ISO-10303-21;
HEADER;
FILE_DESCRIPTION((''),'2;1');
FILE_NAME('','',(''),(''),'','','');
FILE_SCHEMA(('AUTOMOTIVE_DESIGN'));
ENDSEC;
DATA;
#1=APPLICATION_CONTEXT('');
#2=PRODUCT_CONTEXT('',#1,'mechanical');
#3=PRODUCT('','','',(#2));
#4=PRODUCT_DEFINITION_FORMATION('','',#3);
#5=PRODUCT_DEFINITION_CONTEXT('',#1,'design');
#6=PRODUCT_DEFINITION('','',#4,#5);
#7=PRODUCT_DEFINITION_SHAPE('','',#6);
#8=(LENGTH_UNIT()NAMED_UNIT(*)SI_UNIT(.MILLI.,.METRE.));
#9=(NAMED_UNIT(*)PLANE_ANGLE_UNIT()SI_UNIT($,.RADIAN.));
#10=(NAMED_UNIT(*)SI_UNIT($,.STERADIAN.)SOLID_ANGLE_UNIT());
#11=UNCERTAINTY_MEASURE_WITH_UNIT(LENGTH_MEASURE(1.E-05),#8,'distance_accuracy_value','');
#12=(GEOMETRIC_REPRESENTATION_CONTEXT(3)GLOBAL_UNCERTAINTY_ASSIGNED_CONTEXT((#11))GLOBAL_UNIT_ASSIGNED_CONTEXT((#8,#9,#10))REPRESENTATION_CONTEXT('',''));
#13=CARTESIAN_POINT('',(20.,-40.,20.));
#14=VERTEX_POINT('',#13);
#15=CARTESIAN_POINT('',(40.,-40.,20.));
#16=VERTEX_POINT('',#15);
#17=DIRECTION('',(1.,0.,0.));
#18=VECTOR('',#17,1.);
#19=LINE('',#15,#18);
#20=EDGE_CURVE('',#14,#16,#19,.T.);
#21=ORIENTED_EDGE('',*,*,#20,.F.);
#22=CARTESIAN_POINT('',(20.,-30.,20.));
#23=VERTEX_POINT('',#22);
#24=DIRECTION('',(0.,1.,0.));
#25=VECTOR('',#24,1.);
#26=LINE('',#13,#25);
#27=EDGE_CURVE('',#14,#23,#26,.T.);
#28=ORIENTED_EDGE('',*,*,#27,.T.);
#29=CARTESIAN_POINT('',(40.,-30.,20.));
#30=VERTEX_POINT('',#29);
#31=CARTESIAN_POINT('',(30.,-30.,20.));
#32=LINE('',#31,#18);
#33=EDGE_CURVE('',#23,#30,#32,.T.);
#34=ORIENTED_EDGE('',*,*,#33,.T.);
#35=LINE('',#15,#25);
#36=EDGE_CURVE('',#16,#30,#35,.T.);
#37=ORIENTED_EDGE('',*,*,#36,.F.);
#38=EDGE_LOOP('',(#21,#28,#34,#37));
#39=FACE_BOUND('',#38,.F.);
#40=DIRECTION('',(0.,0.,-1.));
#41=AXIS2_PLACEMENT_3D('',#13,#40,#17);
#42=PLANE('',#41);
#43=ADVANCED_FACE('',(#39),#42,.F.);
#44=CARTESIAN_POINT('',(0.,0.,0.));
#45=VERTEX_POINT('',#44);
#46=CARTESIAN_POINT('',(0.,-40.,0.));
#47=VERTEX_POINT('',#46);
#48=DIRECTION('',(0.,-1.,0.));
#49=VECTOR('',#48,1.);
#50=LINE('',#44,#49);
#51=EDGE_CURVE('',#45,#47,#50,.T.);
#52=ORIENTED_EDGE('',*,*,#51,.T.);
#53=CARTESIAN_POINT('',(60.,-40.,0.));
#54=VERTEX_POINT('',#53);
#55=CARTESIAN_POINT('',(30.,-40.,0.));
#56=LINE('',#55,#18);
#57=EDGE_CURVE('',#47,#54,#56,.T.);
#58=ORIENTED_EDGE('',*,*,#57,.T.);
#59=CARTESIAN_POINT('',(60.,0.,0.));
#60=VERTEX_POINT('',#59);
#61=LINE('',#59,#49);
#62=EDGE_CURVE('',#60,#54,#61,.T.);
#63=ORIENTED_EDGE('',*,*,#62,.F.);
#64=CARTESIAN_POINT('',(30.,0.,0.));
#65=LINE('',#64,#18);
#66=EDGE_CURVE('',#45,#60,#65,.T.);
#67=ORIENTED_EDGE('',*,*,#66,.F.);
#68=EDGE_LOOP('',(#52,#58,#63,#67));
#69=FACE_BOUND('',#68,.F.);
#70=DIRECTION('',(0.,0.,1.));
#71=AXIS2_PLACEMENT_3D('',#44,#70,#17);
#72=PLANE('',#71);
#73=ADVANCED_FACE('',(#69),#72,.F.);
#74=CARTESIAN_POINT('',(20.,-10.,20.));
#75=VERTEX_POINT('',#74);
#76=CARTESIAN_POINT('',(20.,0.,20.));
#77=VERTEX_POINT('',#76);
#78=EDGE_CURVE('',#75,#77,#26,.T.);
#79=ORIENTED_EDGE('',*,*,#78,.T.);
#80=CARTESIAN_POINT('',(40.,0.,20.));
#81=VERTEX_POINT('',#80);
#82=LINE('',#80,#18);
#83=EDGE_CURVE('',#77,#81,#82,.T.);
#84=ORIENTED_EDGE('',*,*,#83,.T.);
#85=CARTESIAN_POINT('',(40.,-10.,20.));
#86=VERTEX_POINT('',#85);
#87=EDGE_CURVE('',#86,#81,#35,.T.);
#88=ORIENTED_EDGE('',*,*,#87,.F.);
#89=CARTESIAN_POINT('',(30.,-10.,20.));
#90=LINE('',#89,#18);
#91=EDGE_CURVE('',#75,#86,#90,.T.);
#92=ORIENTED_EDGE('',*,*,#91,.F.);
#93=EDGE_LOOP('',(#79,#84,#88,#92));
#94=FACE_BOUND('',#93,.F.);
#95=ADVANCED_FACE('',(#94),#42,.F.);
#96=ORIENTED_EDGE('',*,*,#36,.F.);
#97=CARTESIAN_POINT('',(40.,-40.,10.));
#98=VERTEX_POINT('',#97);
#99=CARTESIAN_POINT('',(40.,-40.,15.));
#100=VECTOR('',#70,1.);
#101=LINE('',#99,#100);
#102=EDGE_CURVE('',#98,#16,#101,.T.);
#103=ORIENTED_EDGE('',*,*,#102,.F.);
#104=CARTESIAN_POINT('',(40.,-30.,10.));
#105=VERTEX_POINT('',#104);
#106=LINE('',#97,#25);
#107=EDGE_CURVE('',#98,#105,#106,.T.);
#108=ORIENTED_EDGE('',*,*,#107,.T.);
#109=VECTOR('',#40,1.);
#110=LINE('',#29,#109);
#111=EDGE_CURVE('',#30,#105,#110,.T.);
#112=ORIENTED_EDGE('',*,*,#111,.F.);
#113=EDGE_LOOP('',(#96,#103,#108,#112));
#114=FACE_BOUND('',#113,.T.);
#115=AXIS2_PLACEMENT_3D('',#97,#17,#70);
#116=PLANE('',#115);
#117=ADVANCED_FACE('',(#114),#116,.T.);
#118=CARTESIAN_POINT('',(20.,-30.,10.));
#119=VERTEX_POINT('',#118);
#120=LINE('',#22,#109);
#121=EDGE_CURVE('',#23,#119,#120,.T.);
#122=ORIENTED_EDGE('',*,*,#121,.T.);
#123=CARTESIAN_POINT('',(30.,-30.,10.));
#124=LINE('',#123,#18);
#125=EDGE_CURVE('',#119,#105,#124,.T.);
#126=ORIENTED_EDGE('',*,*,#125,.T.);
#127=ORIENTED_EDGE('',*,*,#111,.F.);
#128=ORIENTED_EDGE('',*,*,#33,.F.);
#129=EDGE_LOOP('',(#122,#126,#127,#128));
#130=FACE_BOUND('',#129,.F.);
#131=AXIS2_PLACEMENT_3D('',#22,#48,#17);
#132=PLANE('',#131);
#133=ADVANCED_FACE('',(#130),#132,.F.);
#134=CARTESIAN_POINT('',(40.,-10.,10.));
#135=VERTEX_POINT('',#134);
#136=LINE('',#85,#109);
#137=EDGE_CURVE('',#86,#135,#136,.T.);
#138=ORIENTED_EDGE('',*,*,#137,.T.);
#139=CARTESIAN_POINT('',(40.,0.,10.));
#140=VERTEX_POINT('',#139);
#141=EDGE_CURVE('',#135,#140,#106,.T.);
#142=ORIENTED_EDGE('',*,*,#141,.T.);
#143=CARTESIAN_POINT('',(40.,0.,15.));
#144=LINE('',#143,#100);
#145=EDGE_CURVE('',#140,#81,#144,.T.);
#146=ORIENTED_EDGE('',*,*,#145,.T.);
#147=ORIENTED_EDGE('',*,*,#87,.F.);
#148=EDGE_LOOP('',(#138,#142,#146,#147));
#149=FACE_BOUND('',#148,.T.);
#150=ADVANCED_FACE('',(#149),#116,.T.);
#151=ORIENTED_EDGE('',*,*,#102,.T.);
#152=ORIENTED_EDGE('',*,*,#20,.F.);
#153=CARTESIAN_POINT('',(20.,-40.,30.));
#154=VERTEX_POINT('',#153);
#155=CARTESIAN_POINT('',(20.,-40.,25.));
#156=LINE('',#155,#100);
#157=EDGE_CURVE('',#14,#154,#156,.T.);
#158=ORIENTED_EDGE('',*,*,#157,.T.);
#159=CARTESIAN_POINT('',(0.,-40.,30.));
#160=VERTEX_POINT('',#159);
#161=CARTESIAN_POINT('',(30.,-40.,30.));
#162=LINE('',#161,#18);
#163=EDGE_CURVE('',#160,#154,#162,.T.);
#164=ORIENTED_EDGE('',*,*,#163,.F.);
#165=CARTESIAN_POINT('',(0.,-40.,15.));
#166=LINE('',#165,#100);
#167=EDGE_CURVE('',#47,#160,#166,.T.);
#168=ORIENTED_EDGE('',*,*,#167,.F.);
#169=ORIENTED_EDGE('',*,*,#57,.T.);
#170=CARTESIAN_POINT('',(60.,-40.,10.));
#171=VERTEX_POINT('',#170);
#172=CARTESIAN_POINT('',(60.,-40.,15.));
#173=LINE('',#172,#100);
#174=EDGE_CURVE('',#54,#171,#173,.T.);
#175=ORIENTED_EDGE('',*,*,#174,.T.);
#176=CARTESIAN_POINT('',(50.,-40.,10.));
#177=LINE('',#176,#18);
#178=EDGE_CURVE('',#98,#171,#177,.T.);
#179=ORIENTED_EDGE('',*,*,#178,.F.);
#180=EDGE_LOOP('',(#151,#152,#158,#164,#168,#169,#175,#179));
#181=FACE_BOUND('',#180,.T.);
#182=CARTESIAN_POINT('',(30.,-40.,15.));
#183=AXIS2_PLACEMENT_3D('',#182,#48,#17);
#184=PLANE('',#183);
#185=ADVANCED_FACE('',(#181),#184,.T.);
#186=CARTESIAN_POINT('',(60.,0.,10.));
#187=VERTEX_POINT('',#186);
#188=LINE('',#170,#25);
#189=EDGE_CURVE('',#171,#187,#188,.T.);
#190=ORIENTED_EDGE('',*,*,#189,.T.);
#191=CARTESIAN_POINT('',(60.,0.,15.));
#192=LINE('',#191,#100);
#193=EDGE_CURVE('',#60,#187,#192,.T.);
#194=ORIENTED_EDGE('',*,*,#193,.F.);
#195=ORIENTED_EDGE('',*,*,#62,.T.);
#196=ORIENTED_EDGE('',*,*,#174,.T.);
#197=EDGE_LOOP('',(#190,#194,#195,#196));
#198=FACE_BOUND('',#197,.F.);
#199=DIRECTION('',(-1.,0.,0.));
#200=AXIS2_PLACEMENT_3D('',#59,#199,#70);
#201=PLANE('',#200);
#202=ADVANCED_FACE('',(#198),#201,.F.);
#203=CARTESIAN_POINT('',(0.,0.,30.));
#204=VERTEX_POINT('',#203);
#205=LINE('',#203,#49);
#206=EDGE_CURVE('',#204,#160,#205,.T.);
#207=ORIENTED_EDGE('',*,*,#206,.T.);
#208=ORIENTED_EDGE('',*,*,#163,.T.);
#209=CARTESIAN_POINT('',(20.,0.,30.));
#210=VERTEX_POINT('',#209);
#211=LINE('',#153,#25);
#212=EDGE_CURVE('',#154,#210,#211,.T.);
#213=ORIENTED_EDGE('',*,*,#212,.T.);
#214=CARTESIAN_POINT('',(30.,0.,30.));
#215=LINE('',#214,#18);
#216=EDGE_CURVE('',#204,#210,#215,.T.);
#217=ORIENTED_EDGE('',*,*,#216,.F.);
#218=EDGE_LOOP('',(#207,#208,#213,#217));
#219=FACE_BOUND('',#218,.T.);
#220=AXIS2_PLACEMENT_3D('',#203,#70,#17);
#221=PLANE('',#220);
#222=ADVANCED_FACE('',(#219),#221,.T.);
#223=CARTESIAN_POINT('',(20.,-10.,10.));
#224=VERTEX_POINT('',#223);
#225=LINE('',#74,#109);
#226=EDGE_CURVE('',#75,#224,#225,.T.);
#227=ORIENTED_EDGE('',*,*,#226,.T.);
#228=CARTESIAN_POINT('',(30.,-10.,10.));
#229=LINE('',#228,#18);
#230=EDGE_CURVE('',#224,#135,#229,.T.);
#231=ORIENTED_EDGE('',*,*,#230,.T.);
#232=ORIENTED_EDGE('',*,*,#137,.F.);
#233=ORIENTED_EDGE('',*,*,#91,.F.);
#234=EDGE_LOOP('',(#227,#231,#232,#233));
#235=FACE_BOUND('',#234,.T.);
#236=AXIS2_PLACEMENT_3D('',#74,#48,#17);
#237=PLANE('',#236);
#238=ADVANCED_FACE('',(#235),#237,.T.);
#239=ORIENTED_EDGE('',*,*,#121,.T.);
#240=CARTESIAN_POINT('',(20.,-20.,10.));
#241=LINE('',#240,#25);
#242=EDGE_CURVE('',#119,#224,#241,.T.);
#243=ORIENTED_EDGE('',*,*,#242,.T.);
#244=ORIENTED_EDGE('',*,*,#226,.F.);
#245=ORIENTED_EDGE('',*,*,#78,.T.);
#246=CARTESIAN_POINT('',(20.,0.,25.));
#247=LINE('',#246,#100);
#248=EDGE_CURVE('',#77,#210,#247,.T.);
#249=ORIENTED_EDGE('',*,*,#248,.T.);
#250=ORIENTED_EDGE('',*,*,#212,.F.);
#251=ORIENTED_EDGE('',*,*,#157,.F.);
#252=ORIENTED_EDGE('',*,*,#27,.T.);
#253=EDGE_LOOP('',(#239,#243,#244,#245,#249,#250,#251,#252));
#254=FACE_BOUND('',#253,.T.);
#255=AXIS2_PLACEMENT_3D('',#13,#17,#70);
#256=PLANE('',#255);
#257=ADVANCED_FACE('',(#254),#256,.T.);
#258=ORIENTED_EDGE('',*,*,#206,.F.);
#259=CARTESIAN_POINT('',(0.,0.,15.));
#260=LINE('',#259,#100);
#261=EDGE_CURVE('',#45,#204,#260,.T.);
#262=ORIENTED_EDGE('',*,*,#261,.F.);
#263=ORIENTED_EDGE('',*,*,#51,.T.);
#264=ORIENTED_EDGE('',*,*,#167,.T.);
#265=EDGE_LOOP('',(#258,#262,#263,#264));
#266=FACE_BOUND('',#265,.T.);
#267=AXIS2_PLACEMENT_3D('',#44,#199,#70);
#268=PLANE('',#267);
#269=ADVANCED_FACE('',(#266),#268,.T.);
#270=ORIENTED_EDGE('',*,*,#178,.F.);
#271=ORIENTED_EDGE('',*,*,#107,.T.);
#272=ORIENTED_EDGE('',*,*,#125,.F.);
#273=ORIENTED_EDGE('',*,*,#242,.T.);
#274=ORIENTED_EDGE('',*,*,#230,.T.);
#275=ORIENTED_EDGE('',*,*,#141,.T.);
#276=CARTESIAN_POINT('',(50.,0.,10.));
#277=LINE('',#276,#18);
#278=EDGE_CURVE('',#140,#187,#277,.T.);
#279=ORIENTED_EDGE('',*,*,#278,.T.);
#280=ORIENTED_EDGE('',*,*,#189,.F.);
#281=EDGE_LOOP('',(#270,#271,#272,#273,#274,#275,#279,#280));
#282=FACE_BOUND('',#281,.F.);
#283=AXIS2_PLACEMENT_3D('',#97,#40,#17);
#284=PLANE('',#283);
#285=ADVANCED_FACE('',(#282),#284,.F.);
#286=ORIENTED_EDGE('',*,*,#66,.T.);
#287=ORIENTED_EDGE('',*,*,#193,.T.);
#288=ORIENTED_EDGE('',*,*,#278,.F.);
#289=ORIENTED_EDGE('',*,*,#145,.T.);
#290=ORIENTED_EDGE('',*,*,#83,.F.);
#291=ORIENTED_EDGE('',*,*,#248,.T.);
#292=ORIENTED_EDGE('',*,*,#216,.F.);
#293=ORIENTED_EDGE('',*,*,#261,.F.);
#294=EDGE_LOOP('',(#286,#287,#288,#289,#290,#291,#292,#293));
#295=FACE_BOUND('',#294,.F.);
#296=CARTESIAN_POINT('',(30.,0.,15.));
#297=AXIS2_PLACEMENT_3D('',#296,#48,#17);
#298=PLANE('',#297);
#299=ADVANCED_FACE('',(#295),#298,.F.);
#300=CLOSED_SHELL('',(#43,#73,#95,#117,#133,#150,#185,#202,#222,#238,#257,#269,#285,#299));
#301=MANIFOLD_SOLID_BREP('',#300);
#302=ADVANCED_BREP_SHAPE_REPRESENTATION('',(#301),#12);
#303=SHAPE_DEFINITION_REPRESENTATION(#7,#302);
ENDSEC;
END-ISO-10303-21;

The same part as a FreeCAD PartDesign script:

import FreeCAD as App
import Part
import Sketcher

doc = App.newDocument("Part")
body = doc.addObject("PartDesign::Body", "Body")

# Sketch on XZ plane
sketch1 = body.newObject("Sketcher::SketchObject", "Sketch")
sketch1.AttachmentSupport = (doc.getObject("XZ_Plane"), [""])
sketch1.MapMode = "FlatFace"
sketch1.addGeometry(Part.LineSegment(App.Vector(0, 30, 0), App.Vector(0, 0, 0)), False)
sketch1.addGeometry(Part.LineSegment(App.Vector(0, 0, 0), App.Vector(60, 0, 0)), False)
sketch1.addGeometry(Part.LineSegment(App.Vector(60, 0, 0), App.Vector(60, 30, 0)), False)
sketch1.addGeometry(Part.LineSegment(App.Vector(60, 30, 0), App.Vector(0, 30, 0)), False)
sketch1.addConstraint(Sketcher.Constraint("Coincident", 0, 2, 1, 1))
sketch1.addConstraint(Sketcher.Constraint("Coincident", 1, 2, 2, 1))
sketch1.addConstraint(Sketcher.Constraint("Coincident", 2, 2, 3, 1))
sketch1.addConstraint(Sketcher.Constraint("Coincident", 3, 2, 0, 1))
sketch1.addConstraint(Sketcher.Constraint("Vertical", 0))
sketch1.addConstraint(Sketcher.Constraint("Horizontal", 1))
sketch1.addConstraint(Sketcher.Constraint("Vertical", 2))
sketch1.addConstraint(Sketcher.Constraint("Horizontal", 3))
sketch1.addConstraint(Sketcher.Constraint("Coincident", 0, 2, -1, 1))
sketch1.addConstraint(Sketcher.Constraint("DistanceX", 1, 1, 1, 2, 60.0))
sketch1.addConstraint(Sketcher.Constraint("DistanceY", 0, 2, 0, 1, 30.0))
pad1 = body.newObject("PartDesign::Pad", "Pad")
pad1.Profile = sketch1
pad1.Length = 40

# Sketch on XZ plane
sketch2 = body.newObject("Sketcher::SketchObject", "Sketch001")
sketch2.AttachmentSupport = (doc.getObject("XZ_Plane"), [""])
sketch2.MapMode = "FlatFace"
sketch2.AttachmentOffset = App.Placement(App.Vector(0, 0, 40), App.Rotation())
sketch2.addGeometry(Part.LineSegment(App.Vector(20, 30, 0), App.Vector(20, 20, 0)), False)
sketch2.addGeometry(Part.LineSegment(App.Vector(20, 20, 0), App.Vector(60, 20, 0)), False)
sketch2.addGeometry(Part.LineSegment(App.Vector(60, 20, 0), App.Vector(60, 30, 0)), False)
sketch2.addGeometry(Part.LineSegment(App.Vector(60, 30, 0), App.Vector(20, 30, 0)), False)
sketch2.addConstraint(Sketcher.Constraint("Coincident", 0, 2, 1, 1))
sketch2.addConstraint(Sketcher.Constraint("Coincident", 1, 2, 2, 1))
sketch2.addConstraint(Sketcher.Constraint("Coincident", 2, 2, 3, 1))
sketch2.addConstraint(Sketcher.Constraint("Coincident", 3, 2, 0, 1))
sketch2.addConstraint(Sketcher.Constraint("Vertical", 0))
sketch2.addConstraint(Sketcher.Constraint("Horizontal", 1))
sketch2.addConstraint(Sketcher.Constraint("Vertical", 2))
sketch2.addConstraint(Sketcher.Constraint("Horizontal", 3))
sketch2.addConstraint(Sketcher.Constraint("DistanceX", 1, 1, 1, 2, 40.0))
sketch2.addConstraint(Sketcher.Constraint("DistanceY", 0, 2, 0, 1, 10.0))
sketch2.addConstraint(Sketcher.Constraint("DistanceX", -1, 1, 0, 2, 20.0))
sketch2.addConstraint(Sketcher.Constraint("DistanceY", -1, 1, 0, 2, 20.0))
pocket1 = body.newObject("PartDesign::Pocket", "Pocket")
pocket1.Profile = sketch2
pocket1.Length = 40

# Sketch on XZ plane
sketch3 = body.newObject("Sketcher::SketchObject", "Sketch002")
sketch3.AttachmentSupport = (doc.getObject("XZ_Plane"), [""])
sketch3.MapMode = "FlatFace"
sketch3.AttachmentOffset = App.Placement(App.Vector(0, 0, 40), App.Rotation())
sketch3.addGeometry(Part.LineSegment(App.Vector(40, 20, 0), App.Vector(40, 10, 0)), False)
sketch3.addGeometry(Part.LineSegment(App.Vector(40, 10, 0), App.Vector(60, 10, 0)), False)
sketch3.addGeometry(Part.LineSegment(App.Vector(60, 10, 0), App.Vector(60, 20, 0)), False)
sketch3.addGeometry(Part.LineSegment(App.Vector(60, 20, 0), App.Vector(40, 20, 0)), False)
sketch3.addConstraint(Sketcher.Constraint("Coincident", 0, 2, 1, 1))
sketch3.addConstraint(Sketcher.Constraint("Coincident", 1, 2, 2, 1))
sketch3.addConstraint(Sketcher.Constraint("Coincident", 2, 2, 3, 1))
sketch3.addConstraint(Sketcher.Constraint("Coincident", 3, 2, 0, 1))
sketch3.addConstraint(Sketcher.Constraint("Vertical", 0))
sketch3.addConstraint(Sketcher.Constraint("Horizontal", 1))
sketch3.addConstraint(Sketcher.Constraint("Vertical", 2))
sketch3.addConstraint(Sketcher.Constraint("Horizontal", 3))
sketch3.addConstraint(Sketcher.Constraint("DistanceX", 1, 1, 1, 2, 20.0))
sketch3.addConstraint(Sketcher.Constraint("DistanceY", 0, 2, 0, 1, 10.0))
sketch3.addConstraint(Sketcher.Constraint("DistanceX", -1, 1, 0, 2, 40.0))
sketch3.addConstraint(Sketcher.Constraint("DistanceY", -1, 1, 0, 2, 10.0))
pocket2 = body.newObject("PartDesign::Pocket", "Pocket001")
pocket2.Profile = sketch3
pocket2.Length = 40

# Sketch on XY plane
sketch4 = body.newObject("Sketcher::SketchObject", "Sketch003")
sketch4.AttachmentSupport = (doc.getObject("XY_Plane"), [""])
sketch4.MapMode = "FlatFace"
sketch4.AttachmentOffset = App.Placement(App.Vector(0, 0, 20), App.Rotation())
sketch4.addGeometry(Part.LineSegment(App.Vector(20, -10, 0), App.Vector(20, -30, 0)), False)
sketch4.addGeometry(Part.LineSegment(App.Vector(20, -30, 0), App.Vector(40, -30, 0)), False)
sketch4.addGeometry(Part.LineSegment(App.Vector(40, -30, 0), App.Vector(40, -10, 0)), False)
sketch4.addGeometry(Part.LineSegment(App.Vector(40, -10, 0), App.Vector(20, -10, 0)), False)
sketch4.addConstraint(Sketcher.Constraint("Coincident", 0, 2, 1, 1))
sketch4.addConstraint(Sketcher.Constraint("Coincident", 1, 2, 2, 1))
sketch4.addConstraint(Sketcher.Constraint("Coincident", 2, 2, 3, 1))
sketch4.addConstraint(Sketcher.Constraint("Coincident", 3, 2, 0, 1))
sketch4.addConstraint(Sketcher.Constraint("Vertical", 0))
sketch4.addConstraint(Sketcher.Constraint("Horizontal", 1))
sketch4.addConstraint(Sketcher.Constraint("Vertical", 2))
sketch4.addConstraint(Sketcher.Constraint("Horizontal", 3))
sketch4.addConstraint(Sketcher.Constraint("Equal", 3, 0))
sketch4.addConstraint(Sketcher.Constraint("DistanceX", 1, 1, 1, 2, 20.0))
sketch4.addConstraint(Sketcher.Constraint("DistanceX", -1, 1, 0, 2, 20.0))
sketch4.addConstraint(Sketcher.Constraint("DistanceY", 0, 2, -1, 1, 30.0))
pocket3 = body.newObject("PartDesign::Pocket", "Pocket002")
pocket3.Profile = sketch4
pocket3.Length = 10

doc.recompute()
